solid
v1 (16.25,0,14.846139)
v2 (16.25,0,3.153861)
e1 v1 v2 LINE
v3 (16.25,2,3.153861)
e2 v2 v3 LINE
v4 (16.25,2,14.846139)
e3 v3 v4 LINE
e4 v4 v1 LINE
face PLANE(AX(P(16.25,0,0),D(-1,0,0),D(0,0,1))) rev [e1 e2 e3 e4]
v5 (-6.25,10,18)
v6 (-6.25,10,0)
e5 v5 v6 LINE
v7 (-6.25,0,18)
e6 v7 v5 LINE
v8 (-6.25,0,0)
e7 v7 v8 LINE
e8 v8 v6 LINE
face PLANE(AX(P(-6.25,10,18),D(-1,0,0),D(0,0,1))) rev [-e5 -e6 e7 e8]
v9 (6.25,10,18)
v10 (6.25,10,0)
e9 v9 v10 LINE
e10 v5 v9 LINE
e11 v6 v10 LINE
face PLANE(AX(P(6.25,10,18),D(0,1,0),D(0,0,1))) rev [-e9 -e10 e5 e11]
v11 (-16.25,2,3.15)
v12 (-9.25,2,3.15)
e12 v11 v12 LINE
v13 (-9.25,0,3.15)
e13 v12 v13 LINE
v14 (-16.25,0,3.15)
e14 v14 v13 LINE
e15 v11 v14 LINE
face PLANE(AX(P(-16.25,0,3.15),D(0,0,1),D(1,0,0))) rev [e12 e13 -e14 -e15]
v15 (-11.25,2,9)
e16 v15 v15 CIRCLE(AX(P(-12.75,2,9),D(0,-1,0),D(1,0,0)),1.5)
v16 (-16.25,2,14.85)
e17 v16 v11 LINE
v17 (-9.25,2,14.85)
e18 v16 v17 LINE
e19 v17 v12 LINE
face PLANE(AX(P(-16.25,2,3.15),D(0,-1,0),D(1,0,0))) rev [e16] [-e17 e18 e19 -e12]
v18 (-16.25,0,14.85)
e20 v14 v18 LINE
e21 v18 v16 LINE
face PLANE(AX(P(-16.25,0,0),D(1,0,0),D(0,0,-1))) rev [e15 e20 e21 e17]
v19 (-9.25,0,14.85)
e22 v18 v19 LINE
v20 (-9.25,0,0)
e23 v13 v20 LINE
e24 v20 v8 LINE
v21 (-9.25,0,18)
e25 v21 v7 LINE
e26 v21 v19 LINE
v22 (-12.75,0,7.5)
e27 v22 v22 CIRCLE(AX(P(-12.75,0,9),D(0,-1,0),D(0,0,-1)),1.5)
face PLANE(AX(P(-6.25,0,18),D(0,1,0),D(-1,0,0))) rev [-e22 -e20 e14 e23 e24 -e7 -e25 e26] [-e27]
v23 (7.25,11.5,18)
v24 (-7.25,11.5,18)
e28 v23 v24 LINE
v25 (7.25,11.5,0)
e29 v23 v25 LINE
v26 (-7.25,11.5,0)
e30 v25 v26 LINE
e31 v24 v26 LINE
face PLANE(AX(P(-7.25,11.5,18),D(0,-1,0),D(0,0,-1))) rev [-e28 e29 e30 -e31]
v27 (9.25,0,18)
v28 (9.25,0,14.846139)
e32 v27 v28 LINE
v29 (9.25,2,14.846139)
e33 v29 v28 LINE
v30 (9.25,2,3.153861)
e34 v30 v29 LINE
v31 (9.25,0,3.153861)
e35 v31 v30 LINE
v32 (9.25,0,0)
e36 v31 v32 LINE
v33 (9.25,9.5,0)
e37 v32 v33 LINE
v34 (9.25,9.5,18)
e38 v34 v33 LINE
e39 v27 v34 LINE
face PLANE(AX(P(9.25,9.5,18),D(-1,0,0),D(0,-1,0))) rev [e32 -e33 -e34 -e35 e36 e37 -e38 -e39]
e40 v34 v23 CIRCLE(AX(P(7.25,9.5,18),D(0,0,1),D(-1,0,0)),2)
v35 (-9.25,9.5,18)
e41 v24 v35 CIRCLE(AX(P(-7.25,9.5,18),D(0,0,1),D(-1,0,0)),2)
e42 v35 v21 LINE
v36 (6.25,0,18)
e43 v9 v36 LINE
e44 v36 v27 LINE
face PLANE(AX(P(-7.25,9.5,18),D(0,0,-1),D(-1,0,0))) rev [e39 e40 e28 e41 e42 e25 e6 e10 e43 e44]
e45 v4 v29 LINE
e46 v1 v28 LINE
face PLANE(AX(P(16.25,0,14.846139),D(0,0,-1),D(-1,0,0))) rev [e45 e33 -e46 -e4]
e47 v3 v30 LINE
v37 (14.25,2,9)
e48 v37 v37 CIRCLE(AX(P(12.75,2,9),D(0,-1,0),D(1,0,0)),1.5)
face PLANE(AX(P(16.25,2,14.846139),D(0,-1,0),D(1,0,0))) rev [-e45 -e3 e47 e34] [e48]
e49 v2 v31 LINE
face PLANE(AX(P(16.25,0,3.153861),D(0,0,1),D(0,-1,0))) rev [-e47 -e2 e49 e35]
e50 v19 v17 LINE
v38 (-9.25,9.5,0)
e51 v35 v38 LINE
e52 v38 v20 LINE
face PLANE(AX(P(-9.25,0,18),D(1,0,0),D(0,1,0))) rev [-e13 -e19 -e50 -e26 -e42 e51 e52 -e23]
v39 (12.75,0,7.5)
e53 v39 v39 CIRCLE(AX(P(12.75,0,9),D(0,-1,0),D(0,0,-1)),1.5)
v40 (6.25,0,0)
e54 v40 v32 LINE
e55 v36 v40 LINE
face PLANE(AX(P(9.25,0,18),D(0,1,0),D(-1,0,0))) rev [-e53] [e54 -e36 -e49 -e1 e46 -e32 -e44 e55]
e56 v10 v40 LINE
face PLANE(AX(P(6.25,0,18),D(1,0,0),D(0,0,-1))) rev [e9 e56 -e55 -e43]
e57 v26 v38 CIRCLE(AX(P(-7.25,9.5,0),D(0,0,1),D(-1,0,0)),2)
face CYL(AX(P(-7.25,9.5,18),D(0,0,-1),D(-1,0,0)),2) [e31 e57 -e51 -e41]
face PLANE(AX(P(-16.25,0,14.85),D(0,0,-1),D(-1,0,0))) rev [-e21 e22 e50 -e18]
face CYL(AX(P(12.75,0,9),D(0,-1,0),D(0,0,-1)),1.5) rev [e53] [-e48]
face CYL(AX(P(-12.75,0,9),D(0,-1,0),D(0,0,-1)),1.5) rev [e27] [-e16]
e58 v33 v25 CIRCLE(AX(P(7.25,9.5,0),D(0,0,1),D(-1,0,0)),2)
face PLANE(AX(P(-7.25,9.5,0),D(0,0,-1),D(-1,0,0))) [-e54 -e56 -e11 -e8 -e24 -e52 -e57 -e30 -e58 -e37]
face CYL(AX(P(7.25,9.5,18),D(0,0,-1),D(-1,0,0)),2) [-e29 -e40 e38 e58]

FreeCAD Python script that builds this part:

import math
import FreeCAD as App
import Part
import Sketcher

V = App.Vector
Q = App.Units.Quantity


def add_polygon(sketch, points):
    """Adds a closed chain of lines whose ends are joined by coincident constraints."""
    first, n = sketch.GeometryCount, len(points)
    for a, b in zip(points, points[1:] + points[:1]):
        sketch.addGeometry(Part.LineSegment(App.Vector(*a, 0), App.Vector(*b, 0)), False)
    for i in range(n):
        sketch.addConstraint(Sketcher.Constraint("Coincident", first + i, 2, first + (i + 1) % n, 1))

doc = App.newDocument("Part")
body = doc.addObject("PartDesign::Body", "Body")

# Sketch on XY plane
sketch1 = body.newObject("Sketcher::SketchObject", "Sketch")
sketch1.AttachmentSupport = (doc.getObject("XY_Plane"), [""])
sketch1.MapMode = "FlatFace"
sketch1.addGeometry(Part.LineSegment(V(-9.2, 9.5, 0), V(-9.2, 0, 0)), False)
sketch1.addGeometry(Part.LineSegment(V(-9.2, 0, 0), V(-6.2, 0, 0)), False)
sketch1.addGeometry(Part.LineSegment(V(-6.2, 0, 0), V(-6.2, 10, 0)), False)
sketch1.addGeometry(Part.LineSegment(V(-6.2, 10, 0), V(6.2, 10, 0)), False)
sketch1.addGeometry(Part.LineSegment(V(6.2, 10, 0), V(6.2, 0, 0)), False)
sketch1.addGeometry(Part.LineSegment(V(6.2, 0, 0), V(9.2, 0, 0)), False)
sketch1.addGeometry(Part.LineSegment(V(9.2, 0, 0), V(9.2, 9.5, 0)), False)
sketch1.addGeometry(Part.ArcOfCircle(Part.Circle(V(7.2, 9.5, 0), V(0, 0, 1), 2), math.radians(0), math.radians(90)), False)
sketch1.addGeometry(Part.LineSegment(V(7.2, 11.5, 0), V(-7.2, 11.5, 0)), False)
sketch1.addGeometry(Part.ArcOfCircle(Part.Circle(V(-7.2, 9.5, 0), V(0, 0, 1), 2), math.radians(90), math.radians(180)), False)
sketch1.addConstraint(Sketcher.Constraint("Coincident", 0, 2, 1, 1))
sketch1.addConstraint(Sketcher.Constraint("Coincident", 1, 2, 2, 1))
sketch1.addConstraint(Sketcher.Constraint("Coincident", 2, 2, 3, 1))
sketch1.addConstraint(Sketcher.Constraint("Coincident", 3, 2, 4, 1))
sketch1.addConstraint(Sketcher.Constraint("Coincident", 4, 2, 5, 1))
sketch1.addConstraint(Sketcher.Constraint("Coincident", 5, 2, 6, 1))
sketch1.addConstraint(Sketcher.Constraint("Tangent", 6, 2, 7, 1))
sketch1.addConstraint(Sketcher.Constraint("Tangent", 7, 2, 8, 1))
sketch1.addConstraint(Sketcher.Constraint("Tangent", 8, 2, 9, 1))
sketch1.addConstraint(Sketcher.Constraint("Tangent", 9, 2, 0, 1))
sketch1.addConstraint(Sketcher.Constraint("Vertical", 0))
sketch1.addConstraint(Sketcher.Constraint("Horizontal", 1))
sketch1.addConstraint(Sketcher.Constraint("Vertical", 2))
sketch1.addConstraint(Sketcher.Constraint("Horizontal", 3))
sketch1.addConstraint(Sketcher.Constraint("Vertical", 4))
sketch1.addConstraint(Sketcher.Constraint("Horizontal", 5))
sketch1.addConstraint(Sketcher.Constraint("Vertical", 6))
sketch1.addConstraint(Sketcher.Constraint("Horizontal", 8))
sketch1.addConstraint(Sketcher.Constraint("Equal", 7, 9))
sketch1.addConstraint(Sketcher.Constraint("Symmetric", 1, 2, 4, 2, -1, 1))
sketch1.addConstraint(Sketcher.Constraint("Symmetric", 0, 2, 5, 2, -2))
sketch1.addConstraint(Sketcher.Constraint("Radius", 7, Q("2 mm")))
sketch1.addConstraint(Sketcher.Constraint("DistanceX", 1, 1, 1, 2, Q("3 mm")))
sketch1.addConstraint(Sketcher.Constraint("DistanceY", 2, 1, 2, 2, Q("10 mm")))
sketch1.addConstraint(Sketcher.Constraint("DistanceX", 3, 1, 3, 2, Q("12.5 mm")))
sketch1.addConstraint(Sketcher.Constraint("DistanceY", 0, 2, 0, 1, Q("9.5 mm")))
pad1 = body.newObject("PartDesign::Pad", "Pad")
pad1.Profile = sketch1
pad1.Length = 18

# Sketch on YZ plane
sketch2 = body.newObject("Sketcher::SketchObject", "Sketch001")
sketch2.AttachmentSupport = (doc.getObject("YZ_Plane"), [""])
sketch2.MapMode = "FlatFace"
sketch2.AttachmentOffset = App.Placement(V(0, 0, 9.25), App.Rotation())
add_polygon(sketch2, [(2, 14.8), (0, 14.8), (0, 3.2), (2, 3.2)])  # lines 0-3
sketch2.addConstraint(Sketcher.Constraint("Horizontal", 0))
sketch2.addConstraint(Sketcher.Constraint("Vertical", 1))
sketch2.addConstraint(Sketcher.Constraint("Horizontal", 2))
sketch2.addConstraint(Sketcher.Constraint("Vertical", 3))
sketch2.addConstraint(Sketcher.Constraint("PointOnObject", 0, 2, -2))
sketch2.addConstraint(Sketcher.Constraint("DistanceX", 0, 2, 0, 1, Q("2 mm")))
sketch2.addConstraint(Sketcher.Constraint("DistanceY", 1, 2, 1, 1, Q("11.692277 mm")))
sketch2.addConstraint(Sketcher.Constraint("DistanceY", -1, 1, 0, 2, Q("14.846139 mm")))
pad2 = body.newObject("PartDesign::Pad", "Pad001")
pad2.Profile = sketch2
pad2.Length = 7

# Sketch on YZ plane
sketch3 = body.newObject("Sketcher::SketchObject", "Sketch002")
sketch3.AttachmentSupport = (doc.getObject("YZ_Plane"), [""])
sketch3.MapMode = "FlatFace"
sketch3.AttachmentOffset = App.Placement(V(0, 0, -9.25), App.Rotation())
add_polygon(sketch3, [(2, 3.1), (0, 3.1), (0, 14.8), (2, 14.8)])  # lines 0-3
sketch3.addConstraint(Sketcher.Constraint("Horizontal", 0))
sketch3.addConstraint(Sketcher.Constraint("Vertical", 1))
sketch3.addConstraint(Sketcher.Constraint("Horizontal", 2))
sketch3.addConstraint(Sketcher.Constraint("Vertical", 3))
sketch3.addConstraint(Sketcher.Constraint("PointOnObject", 0, 2, -2))
sketch3.addConstraint(Sketcher.Constraint("DistanceX", 0, 2, 0, 1, Q("2 mm")))
sketch3.addConstraint(Sketcher.Constraint("DistanceY", 1, 1, 1, 2, Q("11.7 mm")))
sketch3.addConstraint(Sketcher.Constraint("DistanceY", -1, 1, 0, 2, Q("3.15 mm")))
pad3 = body.newObject("PartDesign::Pad", "Pad002")
pad3.Profile = sketch3
pad3.Length = 7
pad3.Reversed = True

# Sketch on XZ plane
sketch4 = body.newObject("Sketcher::SketchObject", "Sketch003")
sketch4.AttachmentSupport = (doc.getObject("XZ_Plane"), [""])
sketch4.MapMode = "FlatFace"
sketch4.addGeometry(Part.Circle(V(12.8, 9, 0), V(0, 0, 1), 1.5), False)
sketch4.addGeometry(Part.Circle(V(-12.8, 9, 0), V(0, 0, 1), 1.5), False)
sketch4.addConstraint(Sketcher.Constraint("Equal", 0, 1))
sketch4.addConstraint(Sketcher.Constraint("Symmetric", 0, 3, 1, 3, -2))
sketch4.addConstraint(Sketcher.Constraint("Diameter", 0, Q("3 mm")))
sketch4.addConstraint(Sketcher.Constraint("DistanceY", -1, 1, 0, 3, Q("9 mm")))
sketch4.addConstraint(Sketcher.Constraint("DistanceX", 1, 3, 0, 3, Q("25.5 mm")))
doc.recompute()
hole = body.newObject("PartDesign::Hole", "Hole")
hole.Profile = sketch4
hole.ThreadType = "None"
hole.Diameter = 3
hole.DepthType = "Dimension"
hole.Depth = 12
hole.DrillPoint = "Angled"
hole.DrillPointAngle = 118

doc.recompute()
